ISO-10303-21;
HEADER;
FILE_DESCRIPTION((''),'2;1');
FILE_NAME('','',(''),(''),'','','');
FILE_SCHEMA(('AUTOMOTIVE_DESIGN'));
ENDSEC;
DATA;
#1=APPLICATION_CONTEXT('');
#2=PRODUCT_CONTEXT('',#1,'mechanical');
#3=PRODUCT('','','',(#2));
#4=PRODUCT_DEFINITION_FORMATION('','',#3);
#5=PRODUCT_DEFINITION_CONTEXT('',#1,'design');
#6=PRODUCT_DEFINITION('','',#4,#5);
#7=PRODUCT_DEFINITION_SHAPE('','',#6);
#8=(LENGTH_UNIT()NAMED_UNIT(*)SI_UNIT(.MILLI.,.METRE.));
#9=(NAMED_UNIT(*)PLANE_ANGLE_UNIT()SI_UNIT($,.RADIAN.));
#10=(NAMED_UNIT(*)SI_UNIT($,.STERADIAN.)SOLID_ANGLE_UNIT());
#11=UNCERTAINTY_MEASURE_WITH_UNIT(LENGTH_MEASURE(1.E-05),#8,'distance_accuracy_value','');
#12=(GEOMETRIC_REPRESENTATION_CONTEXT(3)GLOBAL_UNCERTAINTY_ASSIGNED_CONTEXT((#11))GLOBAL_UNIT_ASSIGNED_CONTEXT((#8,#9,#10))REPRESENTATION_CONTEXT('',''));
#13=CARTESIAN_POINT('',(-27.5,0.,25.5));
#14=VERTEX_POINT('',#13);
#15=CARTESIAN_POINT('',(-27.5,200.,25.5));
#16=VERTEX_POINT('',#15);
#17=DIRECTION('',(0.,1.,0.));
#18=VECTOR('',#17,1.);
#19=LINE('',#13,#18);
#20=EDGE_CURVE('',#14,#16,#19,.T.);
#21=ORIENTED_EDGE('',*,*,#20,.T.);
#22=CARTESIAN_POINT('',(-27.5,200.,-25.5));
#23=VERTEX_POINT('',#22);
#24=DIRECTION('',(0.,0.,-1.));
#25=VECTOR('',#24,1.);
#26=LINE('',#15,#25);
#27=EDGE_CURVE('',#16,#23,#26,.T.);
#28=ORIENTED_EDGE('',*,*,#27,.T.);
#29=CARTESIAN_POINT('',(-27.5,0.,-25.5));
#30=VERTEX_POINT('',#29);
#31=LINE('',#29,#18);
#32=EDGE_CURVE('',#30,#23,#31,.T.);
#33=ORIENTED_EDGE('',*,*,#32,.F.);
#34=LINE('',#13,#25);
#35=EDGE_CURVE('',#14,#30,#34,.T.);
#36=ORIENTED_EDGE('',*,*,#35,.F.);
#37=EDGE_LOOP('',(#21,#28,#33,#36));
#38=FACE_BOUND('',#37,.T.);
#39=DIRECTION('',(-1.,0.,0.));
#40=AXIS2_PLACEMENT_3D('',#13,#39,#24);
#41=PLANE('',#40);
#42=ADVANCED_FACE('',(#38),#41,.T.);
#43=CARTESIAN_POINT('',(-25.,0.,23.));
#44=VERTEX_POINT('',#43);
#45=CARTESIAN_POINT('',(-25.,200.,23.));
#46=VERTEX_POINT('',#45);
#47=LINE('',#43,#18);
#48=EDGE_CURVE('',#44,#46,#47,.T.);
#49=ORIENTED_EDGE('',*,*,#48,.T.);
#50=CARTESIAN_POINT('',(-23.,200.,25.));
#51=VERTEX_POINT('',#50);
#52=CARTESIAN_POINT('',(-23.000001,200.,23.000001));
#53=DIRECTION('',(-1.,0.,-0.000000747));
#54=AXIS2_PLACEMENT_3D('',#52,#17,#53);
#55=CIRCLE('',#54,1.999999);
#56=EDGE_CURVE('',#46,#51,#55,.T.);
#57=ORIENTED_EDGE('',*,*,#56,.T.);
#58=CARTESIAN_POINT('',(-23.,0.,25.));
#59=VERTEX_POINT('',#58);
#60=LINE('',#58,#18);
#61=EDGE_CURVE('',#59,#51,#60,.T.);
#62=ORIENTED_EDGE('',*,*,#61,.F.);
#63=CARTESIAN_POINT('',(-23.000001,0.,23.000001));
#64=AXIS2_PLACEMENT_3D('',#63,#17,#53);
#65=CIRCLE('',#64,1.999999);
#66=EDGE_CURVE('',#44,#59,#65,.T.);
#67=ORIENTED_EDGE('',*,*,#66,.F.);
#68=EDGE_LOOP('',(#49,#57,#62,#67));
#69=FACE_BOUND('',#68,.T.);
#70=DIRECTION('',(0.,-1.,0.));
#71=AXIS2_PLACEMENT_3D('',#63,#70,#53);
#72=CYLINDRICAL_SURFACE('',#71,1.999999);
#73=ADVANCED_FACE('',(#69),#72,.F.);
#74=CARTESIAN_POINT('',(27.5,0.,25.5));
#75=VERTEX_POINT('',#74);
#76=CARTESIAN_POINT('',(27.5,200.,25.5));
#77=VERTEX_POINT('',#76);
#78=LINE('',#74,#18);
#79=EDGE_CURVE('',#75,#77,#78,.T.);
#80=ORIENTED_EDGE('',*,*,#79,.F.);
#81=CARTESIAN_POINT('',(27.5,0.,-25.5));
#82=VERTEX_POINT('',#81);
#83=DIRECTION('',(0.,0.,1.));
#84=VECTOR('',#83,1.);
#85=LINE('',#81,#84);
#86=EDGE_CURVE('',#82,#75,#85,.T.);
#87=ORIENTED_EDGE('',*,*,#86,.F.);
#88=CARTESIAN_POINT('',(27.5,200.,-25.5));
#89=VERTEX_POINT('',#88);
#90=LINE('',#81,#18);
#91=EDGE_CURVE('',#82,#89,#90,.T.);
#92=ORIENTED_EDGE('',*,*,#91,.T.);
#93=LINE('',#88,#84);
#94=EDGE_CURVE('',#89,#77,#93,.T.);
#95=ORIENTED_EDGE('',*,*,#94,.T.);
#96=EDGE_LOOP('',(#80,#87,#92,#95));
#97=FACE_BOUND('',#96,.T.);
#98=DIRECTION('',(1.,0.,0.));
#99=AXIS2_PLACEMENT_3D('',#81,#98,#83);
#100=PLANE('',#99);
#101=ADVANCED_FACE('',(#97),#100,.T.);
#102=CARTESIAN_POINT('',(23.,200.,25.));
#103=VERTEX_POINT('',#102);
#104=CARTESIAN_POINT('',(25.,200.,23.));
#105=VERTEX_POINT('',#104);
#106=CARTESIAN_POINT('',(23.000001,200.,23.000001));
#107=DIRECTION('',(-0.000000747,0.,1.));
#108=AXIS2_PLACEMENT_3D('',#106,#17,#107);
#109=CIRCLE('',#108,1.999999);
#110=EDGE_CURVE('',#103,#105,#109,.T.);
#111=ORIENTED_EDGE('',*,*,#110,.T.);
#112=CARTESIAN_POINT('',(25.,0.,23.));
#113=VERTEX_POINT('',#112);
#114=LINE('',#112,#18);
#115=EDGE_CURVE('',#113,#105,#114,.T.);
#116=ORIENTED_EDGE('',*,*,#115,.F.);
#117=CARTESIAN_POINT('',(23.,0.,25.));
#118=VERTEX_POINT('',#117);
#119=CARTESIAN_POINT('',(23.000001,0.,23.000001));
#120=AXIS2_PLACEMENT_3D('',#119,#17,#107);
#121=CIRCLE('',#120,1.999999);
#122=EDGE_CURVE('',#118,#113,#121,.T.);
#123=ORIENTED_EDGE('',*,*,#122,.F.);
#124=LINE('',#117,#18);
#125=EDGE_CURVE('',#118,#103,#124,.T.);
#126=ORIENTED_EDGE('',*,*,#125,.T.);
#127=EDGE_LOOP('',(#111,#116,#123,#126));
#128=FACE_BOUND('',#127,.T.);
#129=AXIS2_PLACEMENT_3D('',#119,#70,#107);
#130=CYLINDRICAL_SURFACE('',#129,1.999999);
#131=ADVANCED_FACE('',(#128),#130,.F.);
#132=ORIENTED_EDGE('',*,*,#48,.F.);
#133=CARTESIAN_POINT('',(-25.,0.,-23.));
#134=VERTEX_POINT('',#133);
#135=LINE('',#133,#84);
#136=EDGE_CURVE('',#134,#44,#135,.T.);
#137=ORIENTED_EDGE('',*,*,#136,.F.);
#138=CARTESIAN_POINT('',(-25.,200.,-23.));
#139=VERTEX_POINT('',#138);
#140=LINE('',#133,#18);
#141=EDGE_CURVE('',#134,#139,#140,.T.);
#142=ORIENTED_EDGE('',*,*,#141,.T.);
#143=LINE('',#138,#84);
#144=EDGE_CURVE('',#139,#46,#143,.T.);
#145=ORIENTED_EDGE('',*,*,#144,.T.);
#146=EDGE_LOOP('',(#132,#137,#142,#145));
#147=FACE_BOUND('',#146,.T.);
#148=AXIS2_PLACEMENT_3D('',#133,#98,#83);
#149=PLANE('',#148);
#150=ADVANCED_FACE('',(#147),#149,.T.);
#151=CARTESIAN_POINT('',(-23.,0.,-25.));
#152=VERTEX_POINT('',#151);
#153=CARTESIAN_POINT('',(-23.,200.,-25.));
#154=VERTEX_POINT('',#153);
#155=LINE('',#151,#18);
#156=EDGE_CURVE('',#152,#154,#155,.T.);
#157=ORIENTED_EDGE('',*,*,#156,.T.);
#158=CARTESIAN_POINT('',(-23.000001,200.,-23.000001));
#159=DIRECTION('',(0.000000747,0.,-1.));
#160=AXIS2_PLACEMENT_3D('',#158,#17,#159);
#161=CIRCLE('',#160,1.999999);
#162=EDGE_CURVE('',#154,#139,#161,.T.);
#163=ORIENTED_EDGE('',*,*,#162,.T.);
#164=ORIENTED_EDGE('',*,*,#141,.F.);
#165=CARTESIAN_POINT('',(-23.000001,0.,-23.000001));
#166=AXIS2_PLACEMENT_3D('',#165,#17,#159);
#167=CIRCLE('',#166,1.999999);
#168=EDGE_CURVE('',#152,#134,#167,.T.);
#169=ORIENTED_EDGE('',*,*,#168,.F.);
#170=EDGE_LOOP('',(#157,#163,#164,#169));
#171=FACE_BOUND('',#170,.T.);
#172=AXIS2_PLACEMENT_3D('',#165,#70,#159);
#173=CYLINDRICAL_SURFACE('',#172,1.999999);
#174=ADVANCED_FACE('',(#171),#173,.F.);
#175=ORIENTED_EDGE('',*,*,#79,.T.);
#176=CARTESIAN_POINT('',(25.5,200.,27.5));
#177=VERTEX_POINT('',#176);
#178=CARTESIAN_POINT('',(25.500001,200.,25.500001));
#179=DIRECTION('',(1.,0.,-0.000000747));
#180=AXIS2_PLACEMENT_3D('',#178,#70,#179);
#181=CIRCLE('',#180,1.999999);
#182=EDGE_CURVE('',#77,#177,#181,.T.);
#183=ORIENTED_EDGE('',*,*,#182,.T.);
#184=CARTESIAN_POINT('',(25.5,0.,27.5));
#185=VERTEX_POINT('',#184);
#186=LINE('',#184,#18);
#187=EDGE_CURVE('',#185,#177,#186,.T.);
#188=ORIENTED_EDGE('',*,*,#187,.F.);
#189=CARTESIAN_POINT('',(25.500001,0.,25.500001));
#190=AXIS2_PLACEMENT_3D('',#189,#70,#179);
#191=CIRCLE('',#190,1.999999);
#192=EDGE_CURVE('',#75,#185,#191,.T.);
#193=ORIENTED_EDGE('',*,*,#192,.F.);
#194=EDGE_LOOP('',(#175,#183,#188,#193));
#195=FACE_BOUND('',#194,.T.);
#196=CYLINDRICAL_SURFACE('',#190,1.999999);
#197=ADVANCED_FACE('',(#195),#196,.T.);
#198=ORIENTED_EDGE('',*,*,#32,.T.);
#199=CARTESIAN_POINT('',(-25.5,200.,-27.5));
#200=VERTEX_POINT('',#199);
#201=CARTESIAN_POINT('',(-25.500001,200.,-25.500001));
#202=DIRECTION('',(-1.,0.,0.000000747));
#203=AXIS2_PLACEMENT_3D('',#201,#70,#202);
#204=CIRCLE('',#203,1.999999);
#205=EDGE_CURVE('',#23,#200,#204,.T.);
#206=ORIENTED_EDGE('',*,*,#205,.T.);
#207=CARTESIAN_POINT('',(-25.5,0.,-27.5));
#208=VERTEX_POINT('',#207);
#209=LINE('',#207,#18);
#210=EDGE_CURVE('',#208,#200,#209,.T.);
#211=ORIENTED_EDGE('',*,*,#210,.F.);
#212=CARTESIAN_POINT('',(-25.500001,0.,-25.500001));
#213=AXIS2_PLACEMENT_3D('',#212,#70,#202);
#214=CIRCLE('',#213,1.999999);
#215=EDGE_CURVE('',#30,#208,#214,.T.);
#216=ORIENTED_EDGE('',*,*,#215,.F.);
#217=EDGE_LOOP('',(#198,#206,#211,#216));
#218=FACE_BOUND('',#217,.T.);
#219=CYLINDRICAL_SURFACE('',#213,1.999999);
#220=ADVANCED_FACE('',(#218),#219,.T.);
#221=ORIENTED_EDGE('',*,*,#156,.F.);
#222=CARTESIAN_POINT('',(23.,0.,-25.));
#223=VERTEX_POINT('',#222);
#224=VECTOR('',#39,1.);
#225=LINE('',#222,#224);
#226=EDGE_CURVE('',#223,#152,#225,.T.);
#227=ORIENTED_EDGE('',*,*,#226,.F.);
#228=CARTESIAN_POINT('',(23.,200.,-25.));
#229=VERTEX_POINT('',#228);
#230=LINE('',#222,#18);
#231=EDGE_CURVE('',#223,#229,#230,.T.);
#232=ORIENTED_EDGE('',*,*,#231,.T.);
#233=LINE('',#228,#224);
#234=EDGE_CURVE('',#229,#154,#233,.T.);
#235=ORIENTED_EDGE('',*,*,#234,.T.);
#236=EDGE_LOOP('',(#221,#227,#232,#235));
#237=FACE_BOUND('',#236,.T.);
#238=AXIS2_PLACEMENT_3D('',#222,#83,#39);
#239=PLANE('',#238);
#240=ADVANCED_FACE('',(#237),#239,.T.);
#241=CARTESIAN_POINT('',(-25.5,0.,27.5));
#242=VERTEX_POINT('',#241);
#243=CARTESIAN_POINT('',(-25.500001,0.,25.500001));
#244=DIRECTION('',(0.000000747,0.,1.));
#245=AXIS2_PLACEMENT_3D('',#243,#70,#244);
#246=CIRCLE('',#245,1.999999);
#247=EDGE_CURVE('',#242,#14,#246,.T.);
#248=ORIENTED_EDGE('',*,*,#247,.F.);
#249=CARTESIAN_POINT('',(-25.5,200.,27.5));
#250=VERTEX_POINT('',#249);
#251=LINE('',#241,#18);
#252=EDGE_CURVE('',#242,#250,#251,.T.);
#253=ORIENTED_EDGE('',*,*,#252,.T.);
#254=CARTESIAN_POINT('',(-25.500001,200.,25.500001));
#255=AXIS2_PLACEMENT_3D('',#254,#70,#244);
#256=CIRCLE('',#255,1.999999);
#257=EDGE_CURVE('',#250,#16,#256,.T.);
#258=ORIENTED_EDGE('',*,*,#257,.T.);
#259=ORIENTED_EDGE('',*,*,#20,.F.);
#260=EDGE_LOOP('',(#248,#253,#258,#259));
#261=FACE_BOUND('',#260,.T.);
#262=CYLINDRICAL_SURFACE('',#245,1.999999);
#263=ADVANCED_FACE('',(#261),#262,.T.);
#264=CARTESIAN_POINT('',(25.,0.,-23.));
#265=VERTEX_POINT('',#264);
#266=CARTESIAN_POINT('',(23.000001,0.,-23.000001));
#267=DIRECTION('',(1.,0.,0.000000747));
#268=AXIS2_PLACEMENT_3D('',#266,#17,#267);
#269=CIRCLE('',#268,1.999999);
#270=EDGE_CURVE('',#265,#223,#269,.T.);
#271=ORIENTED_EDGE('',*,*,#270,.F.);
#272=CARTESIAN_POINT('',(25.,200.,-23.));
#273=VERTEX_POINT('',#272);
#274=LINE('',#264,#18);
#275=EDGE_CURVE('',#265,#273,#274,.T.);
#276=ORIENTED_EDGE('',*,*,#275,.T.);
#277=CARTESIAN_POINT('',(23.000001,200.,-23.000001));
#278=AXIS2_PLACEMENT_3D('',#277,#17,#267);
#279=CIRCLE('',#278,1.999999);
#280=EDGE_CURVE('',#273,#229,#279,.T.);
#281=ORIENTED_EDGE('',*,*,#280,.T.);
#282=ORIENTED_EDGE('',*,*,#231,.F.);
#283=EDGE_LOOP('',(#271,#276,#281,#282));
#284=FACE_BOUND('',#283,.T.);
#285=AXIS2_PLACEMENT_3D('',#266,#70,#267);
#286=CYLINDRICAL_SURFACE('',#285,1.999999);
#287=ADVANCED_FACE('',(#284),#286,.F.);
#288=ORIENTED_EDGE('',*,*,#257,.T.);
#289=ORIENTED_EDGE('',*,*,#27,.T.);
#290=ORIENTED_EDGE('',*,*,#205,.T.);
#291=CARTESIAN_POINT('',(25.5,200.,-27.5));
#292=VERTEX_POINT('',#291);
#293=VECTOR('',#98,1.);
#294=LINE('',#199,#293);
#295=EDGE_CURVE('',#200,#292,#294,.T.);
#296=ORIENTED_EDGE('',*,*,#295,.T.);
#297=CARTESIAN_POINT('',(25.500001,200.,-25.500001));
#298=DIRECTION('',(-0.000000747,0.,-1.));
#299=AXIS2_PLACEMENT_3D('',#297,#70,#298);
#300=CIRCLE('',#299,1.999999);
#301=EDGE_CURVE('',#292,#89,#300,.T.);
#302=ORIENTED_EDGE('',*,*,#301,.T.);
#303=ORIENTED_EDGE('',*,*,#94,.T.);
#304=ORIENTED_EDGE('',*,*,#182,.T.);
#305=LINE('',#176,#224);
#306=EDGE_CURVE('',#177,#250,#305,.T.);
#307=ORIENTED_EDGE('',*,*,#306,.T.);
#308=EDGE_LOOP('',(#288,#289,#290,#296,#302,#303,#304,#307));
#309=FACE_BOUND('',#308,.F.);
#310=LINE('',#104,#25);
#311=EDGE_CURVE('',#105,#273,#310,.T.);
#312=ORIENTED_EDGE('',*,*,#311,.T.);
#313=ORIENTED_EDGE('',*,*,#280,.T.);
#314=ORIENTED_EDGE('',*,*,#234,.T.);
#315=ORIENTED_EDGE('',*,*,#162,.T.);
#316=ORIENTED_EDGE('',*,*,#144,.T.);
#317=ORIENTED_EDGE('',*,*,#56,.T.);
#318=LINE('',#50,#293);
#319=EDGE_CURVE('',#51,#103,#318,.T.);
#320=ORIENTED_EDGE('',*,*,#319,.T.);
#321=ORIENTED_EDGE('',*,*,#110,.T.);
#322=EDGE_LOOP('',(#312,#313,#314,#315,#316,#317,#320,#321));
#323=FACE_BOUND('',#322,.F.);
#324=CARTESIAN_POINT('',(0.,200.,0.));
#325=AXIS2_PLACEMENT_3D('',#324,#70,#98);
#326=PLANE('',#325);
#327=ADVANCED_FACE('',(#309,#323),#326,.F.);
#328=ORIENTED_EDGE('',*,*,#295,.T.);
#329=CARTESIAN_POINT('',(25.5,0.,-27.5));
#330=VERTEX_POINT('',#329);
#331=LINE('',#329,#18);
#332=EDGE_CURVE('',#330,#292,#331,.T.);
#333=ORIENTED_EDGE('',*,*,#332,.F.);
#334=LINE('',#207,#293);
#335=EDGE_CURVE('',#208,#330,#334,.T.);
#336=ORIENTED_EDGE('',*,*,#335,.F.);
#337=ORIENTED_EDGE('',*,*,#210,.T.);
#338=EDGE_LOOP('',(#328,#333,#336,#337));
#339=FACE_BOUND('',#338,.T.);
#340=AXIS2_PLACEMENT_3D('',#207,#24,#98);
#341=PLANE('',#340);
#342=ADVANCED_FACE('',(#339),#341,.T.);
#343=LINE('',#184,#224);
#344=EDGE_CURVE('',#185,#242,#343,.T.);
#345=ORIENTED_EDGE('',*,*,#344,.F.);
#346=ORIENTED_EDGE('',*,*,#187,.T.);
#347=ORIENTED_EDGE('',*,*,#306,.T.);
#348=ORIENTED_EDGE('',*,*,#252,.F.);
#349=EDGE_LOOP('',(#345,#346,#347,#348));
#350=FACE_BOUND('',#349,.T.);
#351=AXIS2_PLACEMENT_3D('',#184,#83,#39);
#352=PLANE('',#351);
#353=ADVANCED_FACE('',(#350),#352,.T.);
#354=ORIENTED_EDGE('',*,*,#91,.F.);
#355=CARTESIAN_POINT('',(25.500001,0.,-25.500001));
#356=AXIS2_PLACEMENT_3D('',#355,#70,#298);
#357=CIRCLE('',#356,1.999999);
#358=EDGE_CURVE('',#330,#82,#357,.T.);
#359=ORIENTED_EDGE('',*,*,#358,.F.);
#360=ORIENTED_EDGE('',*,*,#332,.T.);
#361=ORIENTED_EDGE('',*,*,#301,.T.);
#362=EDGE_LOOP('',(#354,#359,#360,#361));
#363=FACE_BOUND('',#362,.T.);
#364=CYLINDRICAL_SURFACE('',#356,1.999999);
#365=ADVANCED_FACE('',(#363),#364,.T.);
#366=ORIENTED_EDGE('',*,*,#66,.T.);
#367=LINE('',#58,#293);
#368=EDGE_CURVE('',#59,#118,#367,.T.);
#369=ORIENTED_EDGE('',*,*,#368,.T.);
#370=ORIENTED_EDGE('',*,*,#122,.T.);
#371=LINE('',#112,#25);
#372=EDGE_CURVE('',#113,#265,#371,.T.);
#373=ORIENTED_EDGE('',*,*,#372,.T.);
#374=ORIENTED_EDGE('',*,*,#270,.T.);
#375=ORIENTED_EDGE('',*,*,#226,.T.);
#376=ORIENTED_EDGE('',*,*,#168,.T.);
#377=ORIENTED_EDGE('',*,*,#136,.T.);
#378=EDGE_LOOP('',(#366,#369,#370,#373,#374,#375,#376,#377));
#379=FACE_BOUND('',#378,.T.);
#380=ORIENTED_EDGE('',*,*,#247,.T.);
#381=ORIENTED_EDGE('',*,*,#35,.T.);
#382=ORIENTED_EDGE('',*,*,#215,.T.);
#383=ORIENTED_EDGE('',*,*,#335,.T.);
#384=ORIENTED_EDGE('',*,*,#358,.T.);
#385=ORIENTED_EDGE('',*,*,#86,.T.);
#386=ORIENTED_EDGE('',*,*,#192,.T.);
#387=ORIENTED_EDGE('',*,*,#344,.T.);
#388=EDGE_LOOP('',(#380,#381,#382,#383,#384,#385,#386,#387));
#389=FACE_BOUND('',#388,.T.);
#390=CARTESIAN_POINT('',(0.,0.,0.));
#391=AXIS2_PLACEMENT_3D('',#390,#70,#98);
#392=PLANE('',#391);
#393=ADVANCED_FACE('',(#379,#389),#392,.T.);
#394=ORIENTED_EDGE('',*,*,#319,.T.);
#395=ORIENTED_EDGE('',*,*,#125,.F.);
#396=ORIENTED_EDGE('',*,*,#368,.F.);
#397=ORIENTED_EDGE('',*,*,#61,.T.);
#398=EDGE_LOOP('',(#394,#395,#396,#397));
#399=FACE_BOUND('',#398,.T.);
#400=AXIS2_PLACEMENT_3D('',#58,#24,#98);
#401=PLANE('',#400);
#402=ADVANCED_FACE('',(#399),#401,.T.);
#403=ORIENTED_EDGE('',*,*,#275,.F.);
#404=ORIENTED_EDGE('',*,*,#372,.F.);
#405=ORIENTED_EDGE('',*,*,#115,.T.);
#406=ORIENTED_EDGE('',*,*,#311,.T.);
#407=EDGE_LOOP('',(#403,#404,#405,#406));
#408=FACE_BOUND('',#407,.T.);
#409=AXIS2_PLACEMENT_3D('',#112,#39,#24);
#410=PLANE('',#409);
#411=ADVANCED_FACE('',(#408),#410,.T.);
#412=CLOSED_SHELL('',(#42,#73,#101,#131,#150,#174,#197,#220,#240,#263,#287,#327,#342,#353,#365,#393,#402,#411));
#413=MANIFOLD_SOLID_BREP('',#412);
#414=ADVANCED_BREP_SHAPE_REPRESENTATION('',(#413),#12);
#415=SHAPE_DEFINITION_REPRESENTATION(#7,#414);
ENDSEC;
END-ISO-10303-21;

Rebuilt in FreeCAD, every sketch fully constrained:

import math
import FreeCAD as App
import Part
import Sketcher
from FreeCAD import Vector
Q = App.Units.Quantity

doc = App.newDocument("Part")
body = doc.addObject("PartDesign::Body", "Body")

# Sketch on XZ plane
sketch1 = body.newObject("Sketcher::SketchObject", "Sketch")
sketch1.AttachmentSupport = (doc.getObject("XZ_Plane"), [""])
sketch1.MapMode = "FlatFace"
sketch1.addGeometry([
    Part.ArcOfCircle(Part.Circle(Vector(25.500001, 25.500001, 0), Vector(0, 0, 1), 1.999999), math.radians(-0.000043), math.radians(90.000043)),  # 0
    Part.LineSegment(Vector(25.5, 27.5, 0), Vector(-25.5, 27.5, 0)),  # 1
    Part.ArcOfCircle(Part.Circle(Vector(-25.500001, 25.500001, 0), Vector(0, 0, 1), 1.999999), math.radians(89.999957), math.radians(180.000043)),  # 2
    Part.LineSegment(Vector(-27.5, 25.5, 0), Vector(-27.5, -25.5, 0)),  # 3
    Part.ArcOfCircle(Part.Circle(Vector(-25.500001, -25.500001, 0), Vector(0, 0, 1), 1.999999), math.radians(179.999957), math.radians(270.000043)),  # 4
    Part.LineSegment(Vector(-25.5, -27.5, 0), Vector(25.5, -27.5, 0)),  # 5
    Part.ArcOfCircle(Part.Circle(Vector(25.500001, -25.500001, 0), Vector(0, 0, 1), 1.999999), math.radians(-90.000043), math.radians(0.000043)),  # 6
    Part.LineSegment(Vector(27.5, -25.5, 0), Vector(27.5, 25.5, 0)),  # 7
    Part.ArcOfCircle(Part.Circle(Vector(-23.000001, 23.000001, 0), Vector(0, 0, 1), 1.999999), math.radians(89.999957), math.radians(180.000043)),  # 8
    Part.LineSegment(Vector(-23, 25, 0), Vector(23, 25, 0)),  # 9
    Part.ArcOfCircle(Part.Circle(Vector(23.000001, 23.000001, 0), Vector(0, 0, 1), 1.999999), math.radians(-0.000043), math.radians(90.000043)),  # 10
    Part.LineSegment(Vector(25, 23, 0), Vector(25, -23, 0)),  # 11
    Part.ArcOfCircle(Part.Circle(Vector(23.000001, -23.000001, 0), Vector(0, 0, 1), 1.999999), math.radians(-90.000043), math.radians(0.000043)),  # 12
    Part.LineSegment(Vector(23, -25, 0), Vector(-23, -25, 0)),  # 13
    Part.ArcOfCircle(Part.Circle(Vector(-23.000001, -23.000001, 0), Vector(0, 0, 1), 1.999999), math.radians(179.999957), math.radians(270.000043)),  # 14
    Part.LineSegment(Vector(-25, -23, 0), Vector(-25, 23, 0)),  # 15
], False)
sketch1.addConstraint([
    Sketcher.Constraint("Tangent", 0, 2, 1, 1),
    Sketcher.Constraint("Tangent", 1, 2, 2, 1),
    Sketcher.Constraint("Tangent", 2, 2, 3, 1),
    Sketcher.Constraint("Tangent", 3, 2, 4, 1),
    Sketcher.Constraint("Tangent", 4, 2, 5, 1),
    Sketcher.Constraint("Tangent", 5, 2, 6, 1),
    Sketcher.Constraint("Tangent", 6, 2, 7, 1),
    Sketcher.Constraint("Tangent", 7, 2, 0, 1),
    Sketcher.Constraint("Tangent", 8, 1, 9, 1),
    Sketcher.Constraint("Tangent", 9, 2, 10, 2),
    Sketcher.Constraint("Tangent", 10, 1, 11, 1),
    Sketcher.Constraint("Tangent", 11, 2, 12, 2),
    Sketcher.Constraint("Tangent", 12, 1, 13, 1),
    Sketcher.Constraint("Tangent", 13, 2, 14, 2),
    Sketcher.Constraint("Tangent", 14, 1, 15, 1),
    Sketcher.Constraint("Tangent", 15, 2, 8, 2),
    Sketcher.Constraint("Horizontal", 1),
    Sketcher.Constraint("Vertical", 3),
    Sketcher.Constraint("Horizontal", 5),
    Sketcher.Constraint("Vertical", 7),
    Sketcher.Constraint("Horizontal", 9),
    Sketcher.Constraint("Vertical", 11),
    Sketcher.Constraint("Horizontal", 13),
    Sketcher.Constraint("Vertical", 15),
    Sketcher.Constraint("Equal", 0, 2),
    Sketcher.Constraint("Equal", 2, 4),
    Sketcher.Constraint("Equal", 4, 6),
    Sketcher.Constraint("Equal", 6, 8),
    Sketcher.Constraint("Equal", 8, 10),
    Sketcher.Constraint("Equal", 10, 12),
    Sketcher.Constraint("Equal", 12, 14),
    Sketcher.Constraint("Symmetric", 0, 3, 4, 3, -1, 1),
    Sketcher.Constraint("Symmetric", 8, 3, 12, 3, -1, 1),
    Sketcher.Constraint("Equal", 5, 3),
    Sketcher.Constraint("Equal", 13, 11),
    Sketcher.Constraint("Radius", 0, Q("1.999999 mm")),
    Sketcher.Constraint("DistanceX", 1, 2, 1, 1, Q("51 mm")),
    Sketcher.Constraint("DistanceX", 9, 1, 9, 2, Q("46 mm")),
])
pad1 = body.newObject("PartDesign::Pad", "Pad")
pad1.Profile = sketch1
pad1.Length = 200
pad1.Reversed = True

doc.recompute()
